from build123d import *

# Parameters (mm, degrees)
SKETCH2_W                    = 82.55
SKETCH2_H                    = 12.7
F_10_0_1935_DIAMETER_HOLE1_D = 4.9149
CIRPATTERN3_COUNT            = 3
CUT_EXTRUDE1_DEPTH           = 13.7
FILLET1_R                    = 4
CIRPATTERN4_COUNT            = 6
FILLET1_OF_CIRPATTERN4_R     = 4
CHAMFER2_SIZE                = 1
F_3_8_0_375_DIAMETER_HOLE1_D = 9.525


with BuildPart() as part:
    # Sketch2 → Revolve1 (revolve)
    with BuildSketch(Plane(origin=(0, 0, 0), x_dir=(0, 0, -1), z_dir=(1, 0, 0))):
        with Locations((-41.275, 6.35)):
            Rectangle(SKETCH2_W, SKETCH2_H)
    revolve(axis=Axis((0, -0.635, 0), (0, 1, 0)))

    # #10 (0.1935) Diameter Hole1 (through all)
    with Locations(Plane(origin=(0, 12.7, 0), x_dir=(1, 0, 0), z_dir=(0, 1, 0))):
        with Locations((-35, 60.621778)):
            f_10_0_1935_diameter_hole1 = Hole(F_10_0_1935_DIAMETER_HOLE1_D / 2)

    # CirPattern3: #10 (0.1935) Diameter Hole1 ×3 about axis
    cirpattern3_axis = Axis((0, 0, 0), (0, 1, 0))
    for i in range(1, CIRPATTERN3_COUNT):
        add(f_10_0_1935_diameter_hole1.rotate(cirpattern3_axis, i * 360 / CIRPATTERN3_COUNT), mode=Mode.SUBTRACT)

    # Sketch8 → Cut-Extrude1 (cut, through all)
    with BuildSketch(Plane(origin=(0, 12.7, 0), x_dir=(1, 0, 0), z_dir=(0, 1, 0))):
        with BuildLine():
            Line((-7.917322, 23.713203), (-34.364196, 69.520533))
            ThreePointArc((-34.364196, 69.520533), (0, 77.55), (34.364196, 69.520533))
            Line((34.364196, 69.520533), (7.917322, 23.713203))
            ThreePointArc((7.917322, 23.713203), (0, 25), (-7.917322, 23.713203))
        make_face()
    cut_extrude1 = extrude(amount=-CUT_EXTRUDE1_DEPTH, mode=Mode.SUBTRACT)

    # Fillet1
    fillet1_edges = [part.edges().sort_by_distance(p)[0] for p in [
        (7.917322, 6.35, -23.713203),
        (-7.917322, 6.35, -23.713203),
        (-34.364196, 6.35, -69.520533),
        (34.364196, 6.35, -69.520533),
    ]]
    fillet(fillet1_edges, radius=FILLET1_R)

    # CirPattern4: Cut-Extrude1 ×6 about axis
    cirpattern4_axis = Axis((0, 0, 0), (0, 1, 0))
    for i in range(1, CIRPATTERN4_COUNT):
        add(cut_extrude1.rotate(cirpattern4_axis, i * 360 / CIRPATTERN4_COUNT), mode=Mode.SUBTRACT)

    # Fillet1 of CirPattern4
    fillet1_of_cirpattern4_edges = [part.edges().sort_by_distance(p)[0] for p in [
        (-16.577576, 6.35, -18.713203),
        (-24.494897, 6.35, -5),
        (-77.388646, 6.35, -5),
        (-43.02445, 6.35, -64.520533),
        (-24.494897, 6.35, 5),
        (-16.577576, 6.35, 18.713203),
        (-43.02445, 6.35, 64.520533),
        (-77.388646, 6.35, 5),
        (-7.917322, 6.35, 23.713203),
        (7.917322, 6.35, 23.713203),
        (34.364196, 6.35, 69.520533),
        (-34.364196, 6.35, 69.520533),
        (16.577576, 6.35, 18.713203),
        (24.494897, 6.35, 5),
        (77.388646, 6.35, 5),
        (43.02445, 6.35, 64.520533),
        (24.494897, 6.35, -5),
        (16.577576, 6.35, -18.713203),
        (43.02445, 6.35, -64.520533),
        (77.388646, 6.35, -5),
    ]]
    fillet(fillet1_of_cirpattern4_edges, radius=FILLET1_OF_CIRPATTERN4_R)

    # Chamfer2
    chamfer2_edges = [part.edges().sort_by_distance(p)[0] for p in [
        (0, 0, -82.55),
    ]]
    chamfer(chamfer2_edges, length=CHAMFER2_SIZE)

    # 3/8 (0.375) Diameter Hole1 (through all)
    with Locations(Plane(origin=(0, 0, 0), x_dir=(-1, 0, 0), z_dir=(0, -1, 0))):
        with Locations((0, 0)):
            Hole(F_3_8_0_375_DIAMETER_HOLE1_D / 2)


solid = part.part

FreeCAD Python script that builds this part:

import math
import FreeCAD as App
import Part
import Sketcher
Q = App.Units.Quantity


def edges_at(feature, points):
    """Names of the edges that pass closest to the given points."""
    edges = feature.Shape.Edges
    near = lambda p: min(range(len(edges)), key=lambda i: edges[i].distToShape(Part.Vertex(*p))[0])
    return sorted({f"Edge{near(p) + 1}" for p in points})

doc = App.newDocument("Part")
body = doc.addObject("PartDesign::Body", "Body")

# Sketch on YZ plane
sketch1 = body.newObject("Sketcher::SketchObject", "Sketch")
sketch1.AttachmentSupport = (doc.getObject("YZ_Plane"), [""])
sketch1.MapMode = "FlatFace"
sketch1.addGeometry([
    Part.LineSegment(App.Vector(12.7, 82.55, 0), App.Vector(0, 82.55, 0)),
    Part.LineSegment(App.Vector(0, 82.55, 0), App.Vector(0, 0, 0)),
    Part.LineSegment(App.Vector(0, 0, 0), App.Vector(12.7, 0, 0)),
    Part.LineSegment(App.Vector(12.7, 0, 0), App.Vector(12.7, 82.55, 0)),
], False)
sketch1.addConstraint([
    Sketcher.Constraint("Coincident", 0, 2, 1, 1),
    Sketcher.Constraint("Coincident", 1, 2, 2, 1),
    Sketcher.Constraint("Coincident", 2, 2, 3, 1),
    Sketcher.Constraint("Coincident", 3, 2, 0, 1),
    Sketcher.Constraint("Horizontal", 0),
    Sketcher.Constraint("Vertical", 1),
    Sketcher.Constraint("Horizontal", 2),
    Sketcher.Constraint("Vertical", 3),
    Sketcher.Constraint("Coincident", 1, 2, -1, 1),
    Sketcher.Constraint("DistanceX", 0, 2, 0, 1, 12.7),
    Sketcher.Constraint("DistanceY", 1, 2, 1, 1, 82.55),
])
revolution = body.newObject("PartDesign::Revolution", "Revolution")
revolution.Profile = sketch1
revolution.ReferenceAxis = (sketch1, ["H_Axis"])
revolution.Angle = 360

# Sketch on XZ plane
sketch2 = body.newObject("Sketcher::SketchObject", "Sketch001")
sketch2.AttachmentSupport = (doc.getObject("XZ_Plane"), [""])
sketch2.MapMode = "FlatFace"
sketch2.AttachmentOffset = App.Placement(App.Vector(0, 0, -12.7), App.Rotation())
sketch2.addGeometry(Part.Circle(App.Vector(-35, -60.621778, 0), App.Vector(0, 0, 1), 2.45745), False)
sketch2.addConstraint([
    Sketcher.Constraint("DistanceX", 0, 3, -1, 1, 35.0),
    Sketcher.Constraint("Diameter", 0, 4.9149),
    Sketcher.Constraint("DistanceY", 0, 3, -1, 1, 60.621778),
])
doc.recompute()
hole = body.newObject("PartDesign::Hole", "Hole")
hole.Profile = sketch2
hole.ThreadType = "None"
hole.Diameter = 4.9149
hole.DepthType = "ThroughAll"
hole.Reversed = True
doc.recompute()

polarpattern = body.newObject("PartDesign::PolarPattern", "PolarPattern")
polarpattern.Originals = [hole]
polarpattern.Axis = (doc.getObject("Y_Axis"), [""])
polarpattern.Angle = 360
polarpattern.Occurrences = 3
body.Tip = polarpattern

# Sketch on XZ plane
sketch3 = body.newObject("Sketcher::SketchObject", "Sketch002")
sketch3.AttachmentSupport = (doc.getObject("XZ_Plane"), [""])
sketch3.MapMode = "FlatFace"
sketch3.AttachmentOffset = App.Placement(App.Vector(0, 0, -12.7), App.Rotation())
sketch3.addGeometry([
    Part.LineSegment(App.Vector(-34.364196, -69.520533, 0), App.Vector(-7.917322, -23.713203, 0)),
    Part.ArcOfCircle(Part.Circle(App.Vector(0, -0.000006, 0), App.Vector(0, 0, 1), 24.999994), math.radians(-108.463046), math.radians(-71.536954)),
    Part.LineSegment(App.Vector(7.917322, -23.713203, 0), App.Vector(34.364196, -69.520533, 0)),
    Part.ArcOfCircle(Part.Circle(App.Vector(0, -0.000002, 0), App.Vector(0, 0, 1), 77.549998), math.radians(-116.303318), math.radians(-63.696682)),
], False)
sketch3.addConstraint([
    Sketcher.Constraint("Coincident", 0, 2, 1, 1),
    Sketcher.Constraint("Coincident", 1, 2, 2, 1),
    Sketcher.Constraint("Coincident", 2, 2, 3, 2),
    Sketcher.Constraint("Coincident", 3, 1, 0, 1),
    Sketcher.Constraint("Coincident", 1, 3, -1, 1),
    Sketcher.Constraint("Coincident", 3, 3, -1, 1),
    Sketcher.Constraint("Horizontal", 0, 2, 1, 2),
    Sketcher.Constraint("Horizontal", 2, 2, 3, 1),
    Sketcher.Constraint("Angle", 0, Q("60 deg")),
    Sketcher.Constraint("Radius", 3, 77.549998),
    Sketcher.Constraint("Radius", 1, 24.999994),
    Sketcher.Constraint("DistanceY", 0, 2, 3, 3, 23.713201),
])
pocket1 = body.newObject("PartDesign::Pocket", "Pocket")
pocket1.Profile = sketch3
pocket1.Type = "ThroughAll"
pocket1.Reversed = True
doc.recompute()

fillet = body.newObject("PartDesign::Fillet", "Fillet")
fillet.Base = (pocket1, edges_at(pocket1, [
    (7.917, 6.35, -23.713),
    (-7.917, 6.35, -23.713),
    (-34.364, 6.35, -69.521),
    (34.364, 6.35, -69.521),
]))
fillet.Radius = 4
doc.recompute()

polarpattern2 = body.newObject("PartDesign::PolarPattern", "PolarPattern001")
polarpattern2.Originals = [pocket1]
polarpattern2.Axis = (doc.getObject("Y_Axis"), [""])
polarpattern2.Angle = 360
polarpattern2.Occurrences = 6
body.Tip = polarpattern2
doc.recompute()

fillet2 = body.newObject("PartDesign::Fillet", "Fillet001")
fillet2.Base = (polarpattern2, edges_at(polarpattern2, [
    (-16.578, 6.35, -18.713),
    (-24.495, 6.35, -5),
    (-77.389, 6.35, -5),
    (-43.024, 6.35, -64.521),
    (-24.495, 6.35, 5),
    (-16.578, 6.35, 18.713),
    (-43.024, 6.35, 64.521),
    (-77.389, 6.35, 5),
    (-7.917, 6.35, 23.713),
    (7.917, 6.35, 23.713),
    (34.364, 6.35, 69.521),
    (-34.364, 6.35, 69.521),
    (16.578, 6.35, 18.713),
    (24.495, 6.35, 5),
    (77.389, 6.35, 5),
    (43.024, 6.35, 64.521),
    (24.495, 6.35, -5),
    (16.578, 6.35, -18.713),
    (43.024, 6.35, -64.521),
    (77.389, 6.35, -5),
]))
fillet2.Radius = 4
doc.recompute()

chamfer = body.newObject("PartDesign::Chamfer", "Chamfer")
chamfer.Base = (fillet2, edges_at(fillet2, [(0, 0, -82.55)]))
chamfer.Size = 1

# Sketch on XZ plane
sketch4 = body.newObject("Sketcher::SketchObject", "Sketch003")
sketch4.AttachmentSupport = (doc.getObject("XZ_Plane"), [""])
sketch4.MapMode = "FlatFace"
sketch4.addGeometry(Part.Circle(App.Vector(0, 0, 0), App.Vector(0, 0, 1), 4.7625), False)
sketch4.addConstraint([
    Sketcher.Constraint("Coincident", 0, 3, -1, 1),
    Sketcher.Constraint("Diameter", 0, 9.525),
])
doc.recompute()
hole2 = body.newObject("PartDesign::Hole", "Hole001")
hole2.Profile = sketch4
hole2.ThreadType = "None"
hole2.Diameter = 9.525
hole2.DepthType = "ThroughAll"

doc.recompute()
